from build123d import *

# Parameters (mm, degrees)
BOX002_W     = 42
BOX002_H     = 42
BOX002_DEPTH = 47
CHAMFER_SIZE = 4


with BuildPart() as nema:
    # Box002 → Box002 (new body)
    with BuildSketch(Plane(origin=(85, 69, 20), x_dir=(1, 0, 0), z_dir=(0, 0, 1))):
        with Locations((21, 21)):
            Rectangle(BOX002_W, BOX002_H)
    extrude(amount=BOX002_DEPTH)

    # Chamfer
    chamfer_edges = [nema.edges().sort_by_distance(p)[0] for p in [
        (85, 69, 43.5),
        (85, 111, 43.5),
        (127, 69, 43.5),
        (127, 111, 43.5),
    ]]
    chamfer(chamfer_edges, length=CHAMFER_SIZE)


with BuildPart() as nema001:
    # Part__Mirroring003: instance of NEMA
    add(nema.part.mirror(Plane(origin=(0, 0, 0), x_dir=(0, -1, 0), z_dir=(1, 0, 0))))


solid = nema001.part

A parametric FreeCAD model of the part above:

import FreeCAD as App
import Part
import Sketcher
Q = App.Units.Quantity


def edges_at(feature, points):
    """Names of the edges that pass closest to the given points."""
    edges = feature.Shape.Edges
    near = lambda p: min(range(len(edges)), key=lambda i: edges[i].distToShape(Part.Vertex(*p))[0])
    return sorted({f"Edge{near(p) + 1}" for p in points})


def add_polygon(sketch, points):
    """Adds a closed chain of lines whose ends are joined by coincident constraints."""
    first, n = sketch.GeometryCount, len(points)
    for a, b in zip(points, points[1:] + points[:1]):
        sketch.addGeometry(Part.LineSegment(App.Vector(*a, 0), App.Vector(*b, 0)), False)
    for i in range(n):
        sketch.addConstraint(Sketcher.Constraint("Coincident", first + i, 2, first + (i + 1) % n, 1))

doc = App.newDocument("Part")
body = doc.addObject("PartDesign::Body", "Body")

# Sketch on XY plane
sketch1 = body.newObject("Sketcher::SketchObject", "Sketch")
sketch1.AttachmentSupport = (doc.getObject("XY_Plane"), [""])
sketch1.MapMode = "FlatFace"
sketch1.AttachmentOffset = App.Placement(App.Vector(0, 0, 20), App.Rotation())
add_polygon(sketch1, [(85, 111), (85, 69), (127, 69), (127, 111)])  # lines 0-3
sketch1.addConstraint([
    Sketcher.Constraint("Vertical", 0),
    Sketcher.Constraint("Horizontal", 1),
    Sketcher.Constraint("Vertical", 2),
    Sketcher.Constraint("Horizontal", 3),
    Sketcher.Constraint("Equal", 3, 0),
    Sketcher.Constraint("DistanceX", 1, 1, 1, 2, Q("42 mm")),
    Sketcher.Constraint("DistanceX", -1, 1, 0, 2, Q("85 mm")),
    Sketcher.Constraint("DistanceY", -1, 1, 0, 2, Q("69 mm")),
])
pad1 = body.newObject("PartDesign::Pad", "Pad")
pad1.Profile = sketch1
pad1.Length = 47
doc.recompute()

chamfer = body.newObject("PartDesign::Chamfer", "Chamfer")
chamfer.Base = (pad1, edges_at(pad1, [
    (85, 69, 43.5),
    (85, 111, 43.5),
    (127, 69, 43.5),
    (127, 111, 43.5),
]))
chamfer.Size = 4
body2 = doc.addObject("PartDesign::Body", "Body001")
doc.recompute()

mirroring = doc.addObject("Part::Mirroring", "Mirroring")
mirroring.Source = body
mirroring.Base = App.Vector(0, 0, 0)
mirroring.Normal = App.Vector(1, 0, 0)
body2.BaseFeature = mirroring
doc.recompute()
body.Visibility = False
mirroring.Visibility = False

doc.recompute()
